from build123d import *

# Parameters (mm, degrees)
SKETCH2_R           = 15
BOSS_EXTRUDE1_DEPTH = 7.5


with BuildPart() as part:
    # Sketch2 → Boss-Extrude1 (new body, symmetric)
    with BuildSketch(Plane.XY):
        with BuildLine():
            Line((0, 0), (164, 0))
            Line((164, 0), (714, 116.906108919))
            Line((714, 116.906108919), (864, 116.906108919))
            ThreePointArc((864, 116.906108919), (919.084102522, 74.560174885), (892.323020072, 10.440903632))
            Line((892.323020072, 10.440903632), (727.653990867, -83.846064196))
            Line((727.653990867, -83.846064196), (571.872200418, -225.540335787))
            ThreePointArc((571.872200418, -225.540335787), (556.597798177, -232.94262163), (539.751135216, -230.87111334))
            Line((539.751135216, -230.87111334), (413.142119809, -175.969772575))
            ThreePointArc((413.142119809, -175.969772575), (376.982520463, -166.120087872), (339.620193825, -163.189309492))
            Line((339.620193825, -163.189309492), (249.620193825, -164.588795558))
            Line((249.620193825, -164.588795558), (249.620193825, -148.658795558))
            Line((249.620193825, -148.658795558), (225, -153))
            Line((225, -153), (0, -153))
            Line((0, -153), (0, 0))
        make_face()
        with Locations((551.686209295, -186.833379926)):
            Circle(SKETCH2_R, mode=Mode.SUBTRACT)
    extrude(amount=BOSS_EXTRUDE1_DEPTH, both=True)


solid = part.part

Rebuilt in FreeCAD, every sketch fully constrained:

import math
import FreeCAD as App
import Part
import Sketcher
Q = App.Units.Quantity

doc = App.newDocument("Part")
body = doc.addObject("PartDesign::Body", "Body")

# Sketch on XY plane
sketch1 = body.newObject("Sketcher::SketchObject", "Sketch")
sketch1.AttachmentSupport = (doc.getObject("XY_Plane"), [""])
sketch1.MapMode = "FlatFace"
sketch1.addGeometry([
    Part.LineSegment(App.Vector(164, 0, 0), App.Vector(0, 0, 0)),  # 0
    Part.LineSegment(App.Vector(0, 0, 0), App.Vector(0, -153, 0)),  # 1
    Part.LineSegment(App.Vector(0, -153, 0), App.Vector(225, -153, 0)),  # 2
    Part.LineSegment(App.Vector(225, -153, 0), App.Vector(249.620194, -148.658796, 0)),  # 3
    Part.LineSegment(App.Vector(249.620194, -148.658796, 0), App.Vector(249.620194, -164.588796, 0)),  # 4
    Part.LineSegment(App.Vector(249.620194, -164.588796, 0), App.Vector(339.620194, -163.189309, 0)),  # 5
    Part.ArcOfCircle(Part.Circle(App.Vector(342.729787, -363.165134, 0), App.Vector(0, 0, 1), 200), math.radians(69.386532), math.radians(90.890869)),  # 6
    Part.LineSegment(App.Vector(413.14212, -175.969773, 0), App.Vector(539.751135, -230.871113, 0)),  # 7
    Part.ArcOfCircle(Part.Circle(App.Vector(551.686209, -203.347414, 0), App.Vector(0, 0, 1), 30), math.radians(-113.442954), math.radians(-47.71132)),  # 8
    Part.LineSegment(App.Vector(571.8722, -225.540336, 0), App.Vector(727.653991, -83.846064, 0)),  # 9
    Part.LineSegment(App.Vector(727.653991, -83.846064, 0), App.Vector(892.32302, 10.440904, 0)),  # 10
    Part.ArcOfCircle(Part.Circle(App.Vector(864, 59.906109, 0), App.Vector(0, 0, 1), 57), math.radians(-60.205208), math.radians(90)),  # 11
    Part.LineSegment(App.Vector(864, 116.906109, 0), App.Vector(714, 116.906109, 0)),  # 12
    Part.LineSegment(App.Vector(714, 116.906109, 0), App.Vector(164, 0, 0)),  # 13
    Part.Circle(App.Vector(551.686209, -186.83338, 0), App.Vector(0, 0, 1), 15),  # 14
], False)
sketch1.addConstraint([
    Sketcher.Constraint("Coincident", 0, 2, 1, 1),
    Sketcher.Constraint("Coincident", 1, 2, 2, 1),
    Sketcher.Constraint("Coincident", 2, 2, 3, 1),
    Sketcher.Constraint("Coincident", 3, 2, 4, 1),
    Sketcher.Constraint("Coincident", 4, 2, 5, 1),
    Sketcher.Constraint("Tangent", 5, 2, 6, 2),
    Sketcher.Constraint("Coincident", 6, 1, 7, 1),
    Sketcher.Constraint("Tangent", 7, 2, 8, 1),
    Sketcher.Constraint("Tangent", 8, 2, 9, 1),
    Sketcher.Constraint("Coincident", 9, 2, 10, 1),
    Sketcher.Constraint("Tangent", 10, 2, 11, 1),
    Sketcher.Constraint("Tangent", 11, 2, 12, 1),
    Sketcher.Constraint("Coincident", 12, 2, 13, 1),
    Sketcher.Constraint("Coincident", 13, 2, 0, 1),
    Sketcher.Constraint("Horizontal", 0),
    Sketcher.Constraint("Vertical", 1),
    Sketcher.Constraint("Horizontal", 2),
    Sketcher.Constraint("Vertical", 4),
    Sketcher.Constraint("Horizontal", 12),
    Sketcher.Constraint("Coincident", 0, 2, -1, 1),
    Sketcher.Constraint("Vertical", 8, 3, 14, 3),
    Sketcher.Constraint("Diameter", 14, 30.0),
    Sketcher.Constraint("Radius", 6, 200.0),
    Sketcher.Constraint("Radius", 8, 30.0),
    Sketcher.Constraint("Radius", 11, 57.0),
    Sketcher.Constraint("DistanceX", 0, 2, 0, 1, 164.0),
    Sketcher.Constraint("DistanceX", 2, 1, 2, 2, 225.0),
    Sketcher.Constraint("DistanceX", 12, 2, 12, 1, 150.0),
    Sketcher.Constraint("DistanceY", 1, 2, 1, 1, 153.0),
    Sketcher.Constraint("Angle", 3, Q("10 deg")),
    Sketcher.Constraint("Angle", 13, Q("-168 deg")),
    Sketcher.Constraint("Distance", 3, 25.0),
    Sketcher.Constraint("Distance", 7, 138.0),
    Sketcher.Constraint("DistanceX", -1, 1, 11, 3, 864.0),
    Sketcher.Constraint("DistanceX", 4, 2, 5, 2, 90.0),
    Sketcher.Constraint("DistanceY", 4, 2, 4, 1, 15.93),
    Sketcher.Constraint("DistanceX", -1, 1, 8, 2, 571.8722),
    Sketcher.Constraint("DistanceY", 7, 2, 8, 3, 27.523699),
    Sketcher.Constraint("Distance", 5, 90.01088),
    Sketcher.Constraint("Distance", 9, 210.583078),
    Sketcher.Constraint("DistanceX", -1, 1, 8, 3, 551.686209),
    Sketcher.Constraint("DistanceY", 14, 3, -1, 1, 186.83338),
])
pad1 = body.newObject("PartDesign::Pad", "Pad")
pad1.Profile = sketch1
pad1.Length = 15
pad1.Midplane = True

doc.recompute()
